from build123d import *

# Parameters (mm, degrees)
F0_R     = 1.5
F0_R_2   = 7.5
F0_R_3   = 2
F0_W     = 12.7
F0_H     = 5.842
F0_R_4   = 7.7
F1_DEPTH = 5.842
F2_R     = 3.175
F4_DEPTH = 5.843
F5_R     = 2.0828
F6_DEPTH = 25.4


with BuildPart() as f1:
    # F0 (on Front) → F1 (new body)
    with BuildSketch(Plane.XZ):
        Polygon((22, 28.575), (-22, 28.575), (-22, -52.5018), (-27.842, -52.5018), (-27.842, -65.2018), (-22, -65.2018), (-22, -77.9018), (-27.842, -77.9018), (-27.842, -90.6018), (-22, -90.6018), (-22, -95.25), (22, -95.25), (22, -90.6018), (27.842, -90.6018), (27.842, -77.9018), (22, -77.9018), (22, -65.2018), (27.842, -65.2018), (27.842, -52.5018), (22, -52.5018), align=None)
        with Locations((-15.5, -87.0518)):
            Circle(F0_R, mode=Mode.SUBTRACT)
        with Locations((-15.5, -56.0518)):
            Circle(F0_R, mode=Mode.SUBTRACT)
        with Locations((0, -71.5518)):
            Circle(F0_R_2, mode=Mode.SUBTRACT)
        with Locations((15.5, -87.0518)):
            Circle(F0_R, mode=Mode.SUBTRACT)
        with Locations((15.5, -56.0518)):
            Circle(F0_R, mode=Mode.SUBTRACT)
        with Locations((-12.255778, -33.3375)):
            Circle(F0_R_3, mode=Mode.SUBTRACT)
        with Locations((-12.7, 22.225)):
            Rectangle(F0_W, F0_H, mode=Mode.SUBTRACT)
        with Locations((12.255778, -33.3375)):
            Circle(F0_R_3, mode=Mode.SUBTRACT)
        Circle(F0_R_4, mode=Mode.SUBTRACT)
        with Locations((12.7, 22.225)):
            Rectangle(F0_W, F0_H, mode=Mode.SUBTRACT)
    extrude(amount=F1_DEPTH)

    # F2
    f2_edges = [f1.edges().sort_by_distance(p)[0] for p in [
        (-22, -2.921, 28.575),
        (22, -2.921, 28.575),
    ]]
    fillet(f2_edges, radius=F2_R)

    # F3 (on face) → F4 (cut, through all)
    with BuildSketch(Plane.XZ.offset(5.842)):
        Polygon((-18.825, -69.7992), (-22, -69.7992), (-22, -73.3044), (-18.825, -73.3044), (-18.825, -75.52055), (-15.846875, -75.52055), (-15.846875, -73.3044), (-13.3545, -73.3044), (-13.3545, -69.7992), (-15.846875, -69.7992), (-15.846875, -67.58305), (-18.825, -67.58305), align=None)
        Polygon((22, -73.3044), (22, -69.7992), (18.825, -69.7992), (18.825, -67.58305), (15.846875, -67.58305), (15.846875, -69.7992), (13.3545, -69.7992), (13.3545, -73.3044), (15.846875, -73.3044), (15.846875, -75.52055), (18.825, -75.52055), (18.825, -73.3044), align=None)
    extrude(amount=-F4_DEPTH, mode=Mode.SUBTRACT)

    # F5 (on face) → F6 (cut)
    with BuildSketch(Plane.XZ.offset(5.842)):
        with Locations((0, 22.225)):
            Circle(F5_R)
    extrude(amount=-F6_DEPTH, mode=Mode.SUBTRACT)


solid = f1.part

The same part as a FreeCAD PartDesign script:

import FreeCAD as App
import Part
import Sketcher

V = App.Vector
Q = App.Units.Quantity


def edges_at(feature, points):
    """Names of the edges that pass closest to the given points."""
    edges = feature.Shape.Edges
    near = lambda p: min(range(len(edges)), key=lambda i: edges[i].distToShape(Part.Vertex(*p))[0])
    return sorted({f"Edge{near(p) + 1}" for p in points})


def add_polygon(sketch, points):
    """Adds a closed chain of lines whose ends are joined by coincident constraints."""
    first, n = sketch.GeometryCount, len(points)
    for a, b in zip(points, points[1:] + points[:1]):
        sketch.addGeometry(Part.LineSegment(App.Vector(*a, 0), App.Vector(*b, 0)), False)
    for i in range(n):
        sketch.addConstraint(Sketcher.Constraint("Coincident", first + i, 2, first + (i + 1) % n, 1))

doc = App.newDocument("Part")
body = doc.addObject("PartDesign::Body", "Body")

sketch1 = doc.addObject("Sketcher::SketchObject", "Sketch")
body.addObject(sketch1)
sketch1.AttachmentSupport = (doc.XZ_Plane, [""])
sketch1.MapMode = "FlatFace"
add_polygon(sketch1, [(22, 28.6), (-22, 28.6), (-22, -52.5), (-27.8, -52.5), (-27.8, -65.2), (-22, -65.2), (-22, -77.9), (-27.8, -77.9), (-27.8, -90.6), (-22, -90.6), (-22, -95.2), (22, -95.2), (22, -90.6), (27.8, -90.6), (27.8, -77.9), (22, -77.9), (22, -65.2), (27.8, -65.2), (27.8, -52.5), (22, -52.5)])
sketch1.addGeometry(Part.Circle(V(-15.5, -87.1, 0), V(0, 0, 1), 1.5), False)
sketch1.addGeometry(Part.Circle(V(-15.5, -56.1, 0), V(0, 0, 1), 1.5), False)
sketch1.addGeometry(Part.Circle(V(-12.3, -33.3, 0), V(0, 0, 1), 2), False)
sketch1.addGeometry(Part.Circle(V(0, -71.6, 0), V(0, 0, 1), 7.5), False)
sketch1.addGeometry(Part.Circle(V(15.5, -87.1, 0), V(0, 0, 1), 1.5), False)
sketch1.addGeometry(Part.Circle(V(15.5, -56.1, 0), V(0, 0, 1), 1.5), False)
sketch1.addGeometry(Part.Circle(V(12.3, -33.3, 0), V(0, 0, 1), 2), False)
add_polygon(sketch1, [(-6.3, 19.3), (-19.1, 19.3), (-19.1, 25.1), (-6.3, 25.1)])
sketch1.addGeometry(Part.Circle(V(0, 0, 0), V(0, 0, 1), 7.7), False)
add_polygon(sketch1, [(19.1, 19.3), (6.3, 19.3), (6.3, 25.1), (19.1, 25.1)])
sketch1.addConstraint([
    Sketcher.Constraint("Horizontal", 0),
    Sketcher.Constraint("Vertical", 1),
    Sketcher.Constraint("Horizontal", 2),
    Sketcher.Constraint("Vertical", 3),
    Sketcher.Constraint("Horizontal", 4),
    Sketcher.Constraint("Vertical", 5),
    Sketcher.Constraint("Horizontal", 6),
    Sketcher.Constraint("Vertical", 7),
    Sketcher.Constraint("Horizontal", 8),
    Sketcher.Constraint("Vertical", 9),
    Sketcher.Constraint("Horizontal", 10),
    Sketcher.Constraint("Vertical", 11),
    Sketcher.Constraint("Horizontal", 12),
    Sketcher.Constraint("Vertical", 13),
    Sketcher.Constraint("Horizontal", 14),
    Sketcher.Constraint("Vertical", 15),
    Sketcher.Constraint("Horizontal", 16),
    Sketcher.Constraint("Vertical", 17),
    Sketcher.Constraint("Horizontal", 18),
    Sketcher.Constraint("Vertical", 19),
    Sketcher.Constraint("Horizontal", 27),
    Sketcher.Constraint("Vertical", 28),
    Sketcher.Constraint("Horizontal", 29),
    Sketcher.Constraint("Vertical", 30),
    Sketcher.Constraint("Horizontal", 32),
    Sketcher.Constraint("Vertical", 33),
    Sketcher.Constraint("Horizontal", 34),
    Sketcher.Constraint("Vertical", 35),
    Sketcher.Constraint("Coincident", 31, 3, -1, 1),
    Sketcher.Constraint("Equal", 20, 21),
    Sketcher.Constraint("Equal", 21, 24),
    Sketcher.Constraint("Equal", 24, 25),
    Sketcher.Constraint("Equal", 22, 26),
    Sketcher.Constraint("Symmetric", 20, 3, 24, 3, -2),
    Sketcher.Constraint("Symmetric", 21, 3, 25, 3, -2),
    Sketcher.Constraint("Symmetric", 22, 3, 26, 3, -2),
    Sketcher.Constraint("Symmetric", 8, 2, 11, 2, -2),
    Sketcher.Constraint("Symmetric", 6, 2, 13, 2, -2),
    Sketcher.Constraint("Symmetric", 4, 2, 15, 2, -2),
    Sketcher.Constraint("Symmetric", 2, 2, 17, 2, -2),
    Sketcher.Constraint("Symmetric", 30, 2, 32, 2, -2),
    Sketcher.Constraint("Symmetric", 28, 2, 34, 2, -2),
    Sketcher.Constraint("PointOnObject", 23, 3, -2),
    Sketcher.Constraint("Vertical", 20, 3, 21, 3),
    Sketcher.Constraint("Vertical", 1, 2, 4, 2),
    Sketcher.Constraint("Vertical", 3, 2, 6, 2),
    Sketcher.Constraint("Vertical", 5, 2, 8, 2),
    Sketcher.Constraint("Vertical", 15, 2, 18, 2),
    Sketcher.Constraint("Equal", 34, 3),
    Sketcher.Constraint("Equal", 3, 5),
    Sketcher.Constraint("Equal", 5, 7),
    Sketcher.Constraint("Equal", 18, 28),
    Sketcher.Constraint("DistanceX", 27, 2, 27, 1, Q("0.5 in")),
    Sketcher.Constraint("DistanceX", 27, 2, 32, 2, Q("1 in")),
    Sketcher.Constraint("DistanceX", 2, 2, 2, 1, Q("0.23 in")),
    Sketcher.Constraint("Diameter", 20, Q("3 mm")),
    Sketcher.Constraint("Diameter", 22, Q("4 mm")),
    Sketcher.Constraint("Diameter", 23, Q("15 mm")),
    Sketcher.Constraint("Diameter", 31, Q("15.4 mm")),
    Sketcher.Constraint("DistanceY", 1, 2, 1, 1, Q("3.192 in")),
    Sketcher.Constraint("DistanceY", 9, 2, 9, 1, Q("0.183 in")),
    Sketcher.Constraint("DistanceY", 9, 2, -1, 1, Q("3.75 in")),
    Sketcher.Constraint("DistanceY", -1, 1, 27, 2, Q("0.76 in")),
    Sketcher.Constraint("DistanceY", 23, 3, 1, 2, Q("0.75 in")),
    Sketcher.Constraint("DistanceY", 22, 3, -1, 1, Q("1.3125 in")),
    Sketcher.Constraint("DistanceX", 0, 2, 0, 1, Q("44 mm")),
    Sketcher.Constraint("DistanceX", 20, 3, -1, 1, Q("15.5 mm")),
    Sketcher.Constraint("DistanceY", 20, 3, -1, 1, Q("87.0518 mm")),
    Sketcher.Constraint("DistanceY", 21, 3, -1, 1, Q("56.0518 mm")),
    Sketcher.Constraint("DistanceX", 2, 2, 22, 3, Q("15.586222 mm")),
])
pad1 = doc.addObject("PartDesign::Pad", "Pad")
body.addObject(pad1)
pad1.Profile = sketch1
pad1.Length = Q("0.23 in")
doc.recompute()

fillet = doc.addObject("PartDesign::Fillet", "Fillet")
body.addObject(fillet)
fillet.Base = (pad1, edges_at(pad1, [(-22, -2.921, 28.575), (22, -2.921, 28.575)]))
fillet.Radius = Q("0.125 in")

sketch2 = doc.addObject("Sketcher::SketchObject", "Sketch001")
body.addObject(sketch2)
sketch2.AttachmentSupport = (doc.XZ_Plane, [""])
sketch2.MapMode = "FlatFace"
sketch2.AttachmentOffset = App.Placement(V(0, 0, 0.23 * 25.4), App.Rotation())
add_polygon(sketch2, [(-18.8, -69.8), (-22, -69.8), (-22, -73.3), (-18.8, -73.3), (-18.8, -75.5), (-15.8, -75.5), (-15.8, -73.3), (-13.4, -73.3), (-13.4, -69.8), (-15.8, -69.8), (-15.8, -67.6), (-18.8, -67.6)])
add_polygon(sketch2, [(22, -73.3), (22, -69.8), (18.8, -69.8), (18.8, -67.6), (15.8, -67.6), (15.8, -69.8), (13.4, -69.8), (13.4, -73.3), (15.8, -73.3), (15.8, -75.5), (18.8, -75.5), (18.8, -73.3)])
sketch2.addConstraint([
    Sketcher.Constraint("Horizontal", 0),
    Sketcher.Constraint("Vertical", 1),
    Sketcher.Constraint("Horizontal", 2),
    Sketcher.Constraint("Vertical", 3),
    Sketcher.Constraint("Horizontal", 4),
    Sketcher.Constraint("Vertical", 5),
    Sketcher.Constraint("Horizontal", 6),
    Sketcher.Constraint("Vertical", 7),
    Sketcher.Constraint("Horizontal", 8),
    Sketcher.Constraint("Vertical", 9),
    Sketcher.Constraint("Horizontal", 10),
    Sketcher.Constraint("Vertical", 11),
    Sketcher.Constraint("Vertical", 12),
    Sketcher.Constraint("Horizontal", 13),
    Sketcher.Constraint("Vertical", 14),
    Sketcher.Constraint("Horizontal", 15),
    Sketcher.Constraint("Vertical", 16),
    Sketcher.Constraint("Horizontal", 17),
    Sketcher.Constraint("Vertical", 18),
    Sketcher.Constraint("Horizontal", 19),
    Sketcher.Constraint("Vertical", 20),
    Sketcher.Constraint("Horizontal", 21),
    Sketcher.Constraint("Vertical", 22),
    Sketcher.Constraint("Horizontal", 23),
    Sketcher.Constraint("Symmetric", 0, 2, 12, 2, -2),
    Sketcher.Constraint("Symmetric", 10, 2, 14, 2, -2),
    Sketcher.Constraint("Symmetric", 8, 2, 16, 2, -2),
    Sketcher.Constraint("Symmetric", 6, 2, 18, 2, -2),
    Sketcher.Constraint("Symmetric", 4, 2, 20, 2, -2),
    Sketcher.Constraint("Symmetric", 2, 2, 22, 2, -2),
    Sketcher.Constraint("Horizontal", 2, 2, 5, 2),
    Sketcher.Constraint("Horizontal", 0, 2, 7, 2),
    Sketcher.Constraint("Vertical", 5, 2, 8, 2),
    Sketcher.Constraint("Vertical", 3, 2, 10, 2),
    Sketcher.Constraint("Equal", 5, 9),
    Sketcher.Constraint("DistanceX", 0, 2, 0, 1, Q("0.125 in")),
    Sketcher.Constraint("DistanceY", 1, 2, 1, 1, Q("0.138 in")),
    Sketcher.Constraint("DistanceY", 0, 2, -1, 1, Q("2.748 in")),
    Sketcher.Constraint("DistanceY", 3, 2, 3, 1, Q("2.21615 mm")),
    Sketcher.Constraint("DistanceX", 0, 2, -1, 1, Q("22 mm")),
    Sketcher.Constraint("DistanceX", 6, 2, -1, 1, Q("13.3545 mm")),
    Sketcher.Constraint("DistanceX", 4, 1, 4, 2, Q("2.978125 mm")),
])
pocket1 = doc.addObject("PartDesign::Pocket", "Pocket")
body.addObject(pocket1)
pocket1.Profile = sketch2
pocket1.Type = "ThroughAll"

sketch3 = doc.addObject("Sketcher::SketchObject", "Sketch002")
body.addObject(sketch3)
sketch3.AttachmentSupport = (doc.XZ_Plane, [""])
sketch3.MapMode = "FlatFace"
sketch3.AttachmentOffset = App.Placement(V(0, 0, 0.23 * 25.4), App.Rotation())
sketch3.addGeometry(Part.Circle(V(0, 22.2, 0), V(0, 0, 1), 2.1), False)
sketch3.addConstraint([
    Sketcher.Constraint("PointOnObject", 0, 3, -2),
    Sketcher.Constraint("Diameter", 0, Q("0.164 in")),
    Sketcher.Constraint("DistanceY", -1, 1, 0, 3, Q("0.875 in")),
])
pocket2 = doc.addObject("PartDesign::Pocket", "Pocket001")
body.addObject(pocket2)
pocket2.Profile = sketch3
pocket2.Length = Q("1 in")

doc.recompute()
